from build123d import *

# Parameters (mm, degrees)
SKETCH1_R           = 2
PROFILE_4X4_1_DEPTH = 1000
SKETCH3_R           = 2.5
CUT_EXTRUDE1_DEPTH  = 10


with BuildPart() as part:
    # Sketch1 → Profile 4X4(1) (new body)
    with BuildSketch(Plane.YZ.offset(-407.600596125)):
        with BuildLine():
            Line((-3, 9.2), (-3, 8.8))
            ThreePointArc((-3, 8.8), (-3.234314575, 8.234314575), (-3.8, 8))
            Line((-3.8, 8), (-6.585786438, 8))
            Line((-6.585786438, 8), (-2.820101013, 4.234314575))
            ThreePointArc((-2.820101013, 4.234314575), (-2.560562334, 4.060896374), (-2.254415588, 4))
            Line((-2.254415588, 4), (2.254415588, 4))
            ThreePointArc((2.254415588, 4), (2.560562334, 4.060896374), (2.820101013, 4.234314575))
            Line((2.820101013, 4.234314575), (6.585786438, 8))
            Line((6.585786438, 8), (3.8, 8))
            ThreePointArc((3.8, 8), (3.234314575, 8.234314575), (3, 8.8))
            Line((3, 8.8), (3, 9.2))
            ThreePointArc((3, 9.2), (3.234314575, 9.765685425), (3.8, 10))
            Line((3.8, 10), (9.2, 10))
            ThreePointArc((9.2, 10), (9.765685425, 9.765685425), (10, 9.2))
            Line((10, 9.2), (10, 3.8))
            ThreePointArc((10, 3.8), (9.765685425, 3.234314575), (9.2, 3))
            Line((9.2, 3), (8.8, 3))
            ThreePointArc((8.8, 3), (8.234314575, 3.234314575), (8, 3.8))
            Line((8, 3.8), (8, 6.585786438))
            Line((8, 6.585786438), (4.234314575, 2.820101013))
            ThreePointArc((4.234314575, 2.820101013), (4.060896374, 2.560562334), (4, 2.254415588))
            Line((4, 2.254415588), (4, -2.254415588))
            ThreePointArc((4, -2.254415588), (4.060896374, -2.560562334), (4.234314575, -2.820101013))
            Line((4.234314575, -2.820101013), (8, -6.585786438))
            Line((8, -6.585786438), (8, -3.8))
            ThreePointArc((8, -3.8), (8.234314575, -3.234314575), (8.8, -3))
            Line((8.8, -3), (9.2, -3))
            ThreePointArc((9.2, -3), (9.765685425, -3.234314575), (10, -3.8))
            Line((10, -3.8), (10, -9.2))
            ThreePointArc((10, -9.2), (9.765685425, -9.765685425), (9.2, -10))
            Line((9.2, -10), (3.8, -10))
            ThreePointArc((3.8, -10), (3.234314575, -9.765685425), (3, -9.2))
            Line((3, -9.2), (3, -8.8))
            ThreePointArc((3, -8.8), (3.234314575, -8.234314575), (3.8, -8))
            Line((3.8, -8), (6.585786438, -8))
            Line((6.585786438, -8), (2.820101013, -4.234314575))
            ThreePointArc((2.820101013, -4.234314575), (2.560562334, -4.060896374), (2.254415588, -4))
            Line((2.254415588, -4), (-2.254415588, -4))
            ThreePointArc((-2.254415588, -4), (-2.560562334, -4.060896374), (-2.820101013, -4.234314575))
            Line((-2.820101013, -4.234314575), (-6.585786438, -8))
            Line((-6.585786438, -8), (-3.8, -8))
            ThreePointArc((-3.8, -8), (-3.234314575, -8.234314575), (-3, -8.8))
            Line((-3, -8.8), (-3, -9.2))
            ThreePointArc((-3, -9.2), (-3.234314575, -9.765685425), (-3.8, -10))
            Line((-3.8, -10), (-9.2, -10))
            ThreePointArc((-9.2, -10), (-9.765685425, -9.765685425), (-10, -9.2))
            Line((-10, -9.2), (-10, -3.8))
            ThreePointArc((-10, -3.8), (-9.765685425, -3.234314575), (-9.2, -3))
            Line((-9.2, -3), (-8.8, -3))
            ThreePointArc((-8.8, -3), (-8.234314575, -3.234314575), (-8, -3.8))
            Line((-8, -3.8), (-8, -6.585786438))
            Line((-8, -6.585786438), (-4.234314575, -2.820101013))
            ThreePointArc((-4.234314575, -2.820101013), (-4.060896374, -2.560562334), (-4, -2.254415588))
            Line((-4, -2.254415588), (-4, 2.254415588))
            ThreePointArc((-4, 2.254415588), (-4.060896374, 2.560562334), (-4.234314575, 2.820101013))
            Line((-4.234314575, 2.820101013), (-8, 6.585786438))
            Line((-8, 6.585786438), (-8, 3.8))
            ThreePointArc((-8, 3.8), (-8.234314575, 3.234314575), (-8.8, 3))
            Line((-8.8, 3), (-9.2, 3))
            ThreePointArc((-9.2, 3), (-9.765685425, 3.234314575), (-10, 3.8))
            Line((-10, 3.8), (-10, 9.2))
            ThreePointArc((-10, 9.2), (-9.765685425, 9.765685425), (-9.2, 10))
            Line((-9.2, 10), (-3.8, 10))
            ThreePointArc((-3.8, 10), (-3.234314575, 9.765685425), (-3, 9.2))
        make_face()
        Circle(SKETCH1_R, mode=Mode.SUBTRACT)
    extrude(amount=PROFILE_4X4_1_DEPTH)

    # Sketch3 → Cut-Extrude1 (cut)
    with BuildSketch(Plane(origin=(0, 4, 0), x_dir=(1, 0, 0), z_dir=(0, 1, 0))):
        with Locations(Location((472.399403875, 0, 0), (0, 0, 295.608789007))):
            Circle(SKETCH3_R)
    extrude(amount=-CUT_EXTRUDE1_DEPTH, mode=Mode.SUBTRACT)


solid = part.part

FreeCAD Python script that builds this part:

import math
import FreeCAD as App
import Part
import Sketcher
Q = App.Units.Quantity

doc = App.newDocument("Part")
params = doc.addObject("Spreadsheet::Sheet", "Params")
for row, (alias, value) in enumerate([
    ("sketch1_diameter", "4 mm"),
    ("sketch1_radius", "0.8 mm"),
    ("sketch1_width", "5.4 mm"),
    ("sketch1_width2", "0.4 mm"),
    ("pad1_length", "1000 mm"),
    ("sketch2_diameter", "5 mm"),
    ("pocket1_length", "10 mm"),
], start=1):
    params.set(f"A{row}", alias)
    params.set(f"B{row}", "=" + value)
    params.setAlias(f"B{row}", alias)

body = doc.addObject("PartDesign::Body", "Body")

sketch1 = doc.addObject("Sketcher::SketchObject", "Sketch")
body.addObject(sketch1)
sketch1.AttachmentSupport = (doc.YZ_Plane, [""])
sketch1.MapMode = "FlatFace"
sketch1.AttachmentOffset = App.Placement(App.Vector(0, 0, -407.600596), App.Rotation())
sketch1.addGeometry(Part.LineSegment(App.Vector(-3, 8.8, 0), App.Vector(-3, 9.2, 0)), False)
sketch1.addGeometry(Part.ArcOfCircle(Part.Circle(App.Vector(-3.8, 9.2, 0), App.Vector(0, 0, 1), 0.8), math.radians(0), math.radians(90)), False)
sketch1.addGeometry(Part.LineSegment(App.Vector(-3.8, 10, 0), App.Vector(-9.2, 10, 0)), False)
sketch1.addGeometry(Part.ArcOfCircle(Part.Circle(App.Vector(-9.2, 9.2, 0), App.Vector(0, 0, 1), 0.8), math.radians(90), math.radians(180)), False)
sketch1.addGeometry(Part.LineSegment(App.Vector(-10, 9.2, 0), App.Vector(-10, 3.8, 0)), False)
sketch1.addGeometry(Part.ArcOfCircle(Part.Circle(App.Vector(-9.2, 3.8, 0), App.Vector(0, 0, 1), 0.8), math.radians(180), math.radians(270)), False)
sketch1.addGeometry(Part.LineSegment(App.Vector(-9.2, 3, 0), App.Vector(-8.8, 3, 0)), False)
sketch1.addGeometry(Part.ArcOfCircle(Part.Circle(App.Vector(-8.8, 3.8, 0), App.Vector(0, 0, 1), 0.8), math.radians(-90), math.radians(0)), False)
sketch1.addGeometry(Part.LineSegment(App.Vector(-8, 3.8, 0), App.Vector(-8, 6.59, 0)), False)
sketch1.addGeometry(Part.LineSegment(App.Vector(-8, 6.59, 0), App.Vector(-4.23, 2.82, 0)), False)
sketch1.addGeometry(Part.ArcOfCircle(Part.Circle(App.Vector(-4.8, 2.25, 0), App.Vector(0, 0, 1), 0.8), math.radians(0), math.radians(45)), False)
sketch1.addGeometry(Part.LineSegment(App.Vector(-4, 2.25, 0), App.Vector(-4, -2.25, 0)), False)
sketch1.addGeometry(Part.ArcOfCircle(Part.Circle(App.Vector(-4.8, -2.25, 0), App.Vector(0, 0, 1), 0.8), math.radians(-45), math.radians(0)), False)
sketch1.addGeometry(Part.LineSegment(App.Vector(-4.23, -2.82, 0), App.Vector(-8, -6.59, 0)), False)
sketch1.addGeometry(Part.LineSegment(App.Vector(-8, -6.59, 0), App.Vector(-8, -3.8, 0)), False)
sketch1.addGeometry(Part.ArcOfCircle(Part.Circle(App.Vector(-8.8, -3.8, 0), App.Vector(0, 0, 1), 0.8), math.radians(0), math.radians(90)), False)
sketch1.addGeometry(Part.LineSegment(App.Vector(-8.8, -3, 0), App.Vector(-9.2, -3, 0)), False)
sketch1.addGeometry(Part.ArcOfCircle(Part.Circle(App.Vector(-9.2, -3.8, 0), App.Vector(0, 0, 1), 0.8), math.radians(90), math.radians(180)), False)
sketch1.addGeometry(Part.LineSegment(App.Vector(-10, -3.8, 0), App.Vector(-10, -9.2, 0)), False)
sketch1.addGeometry(Part.ArcOfCircle(Part.Circle(App.Vector(-9.2, -9.2, 0), App.Vector(0, 0, 1), 0.8), math.radians(180), math.radians(270)), False)
sketch1.addGeometry(Part.LineSegment(App.Vector(-9.2, -10, 0), App.Vector(-3.8, -10, 0)), False)
sketch1.addGeometry(Part.ArcOfCircle(Part.Circle(App.Vector(-3.8, -9.2, 0), App.Vector(0, 0, 1), 0.8), math.radians(-90), math.radians(0)), False)
sketch1.addGeometry(Part.LineSegment(App.Vector(-3, -9.2, 0), App.Vector(-3, -8.8, 0)), False)
sketch1.addGeometry(Part.ArcOfCircle(Part.Circle(App.Vector(-3.8, -8.8, 0), App.Vector(0, 0, 1), 0.8), math.radians(0), math.radians(90)), False)
sketch1.addGeometry(Part.LineSegment(App.Vector(-3.8, -8, 0), App.Vector(-6.59, -8, 0)), False)
sketch1.addGeometry(Part.LineSegment(App.Vector(-6.59, -8, 0), App.Vector(-2.82, -4.23, 0)), False)
sketch1.addGeometry(Part.ArcOfCircle(Part.Circle(App.Vector(-2.25, -4.8, 0), App.Vector(0, 0, 1), 0.8), math.radians(90), math.radians(135)), False)
sketch1.addGeometry(Part.LineSegment(App.Vector(-2.25, -4, 0), App.Vector(2.25, -4, 0)), False)
sketch1.addGeometry(Part.ArcOfCircle(Part.Circle(App.Vector(2.25, -4.8, 0), App.Vector(0, 0, 1), 0.8), math.radians(45), math.radians(90)), False)
sketch1.addGeometry(Part.LineSegment(App.Vector(2.82, -4.23, 0), App.Vector(6.59, -8, 0)), False)
sketch1.addGeometry(Part.LineSegment(App.Vector(6.59, -8, 0), App.Vector(3.8, -8, 0)), False)
sketch1.addGeometry(Part.ArcOfCircle(Part.Circle(App.Vector(3.8, -8.8, 0), App.Vector(0, 0, 1), 0.8), math.radians(90), math.radians(180)), False)
sketch1.addGeometry(Part.LineSegment(App.Vector(3, -8.8, 0), App.Vector(3, -9.2, 0)), False)
sketch1.addGeometry(Part.ArcOfCircle(Part.Circle(App.Vector(3.8, -9.2, 0), App.Vector(0, 0, 1), 0.8), math.radians(180), math.radians(270)), False)
sketch1.addGeometry(Part.LineSegment(App.Vector(3.8, -10, 0), App.Vector(9.2, -10, 0)), False)
sketch1.addGeometry(Part.ArcOfCircle(Part.Circle(App.Vector(9.2, -9.2, 0), App.Vector(0, 0, 1), 0.8), math.radians(-90), math.radians(0)), False)
sketch1.addGeometry(Part.LineSegment(App.Vector(10, -9.2, 0), App.Vector(10, -3.8, 0)), False)
sketch1.addGeometry(Part.ArcOfCircle(Part.Circle(App.Vector(9.2, -3.8, 0), App.Vector(0, 0, 1), 0.8), math.radians(0), math.radians(90)), False)
sketch1.addGeometry(Part.LineSegment(App.Vector(9.2, -3, 0), App.Vector(8.8, -3, 0)), False)
sketch1.addGeometry(Part.ArcOfCircle(Part.Circle(App.Vector(8.8, -3.8, 0), App.Vector(0, 0, 1), 0.8), math.radians(90), math.radians(180)), False)
sketch1.addGeometry(Part.LineSegment(App.Vector(8, -3.8, 0), App.Vector(8, -6.59, 0)), False)
sketch1.addGeometry(Part.LineSegment(App.Vector(8, -6.59, 0), App.Vector(4.23, -2.82, 0)), False)
sketch1.addGeometry(Part.ArcOfCircle(Part.Circle(App.Vector(4.8, -2.25, 0), App.Vector(0, 0, 1), 0.8), math.radians(180), math.radians(225)), False)
sketch1.addGeometry(Part.LineSegment(App.Vector(4, -2.25, 0), App.Vector(4, 2.25, 0)), False)
sketch1.addGeometry(Part.ArcOfCircle(Part.Circle(App.Vector(4.8, 2.25, 0), App.Vector(0, 0, 1), 0.8), math.radians(135), math.radians(180)), False)
sketch1.addGeometry(Part.LineSegment(App.Vector(4.23, 2.82, 0), App.Vector(8, 6.59, 0)), False)
sketch1.addGeometry(Part.LineSegment(App.Vector(8, 6.59, 0), App.Vector(8, 3.8, 0)), False)
sketch1.addGeometry(Part.ArcOfCircle(Part.Circle(App.Vector(8.8, 3.8, 0), App.Vector(0, 0, 1), 0.8), math.radians(180), math.radians(270)), False)
sketch1.addGeometry(Part.LineSegment(App.Vector(8.8, 3, 0), App.Vector(9.2, 3, 0)), False)
sketch1.addGeometry(Part.ArcOfCircle(Part.Circle(App.Vector(9.2, 3.8, 0), App.Vector(0, 0, 1), 0.8), math.radians(-90), math.radians(0)), False)
sketch1.addGeometry(Part.LineSegment(App.Vector(10, 3.8, 0), App.Vector(10, 9.2, 0)), False)
sketch1.addGeometry(Part.ArcOfCircle(Part.Circle(App.Vector(9.2, 9.2, 0), App.Vector(0, 0, 1), 0.8), math.radians(0), math.radians(90)), False)
sketch1.addGeometry(Part.LineSegment(App.Vector(9.2, 10, 0), App.Vector(3.8, 10, 0)), False)
sketch1.addGeometry(Part.ArcOfCircle(Part.Circle(App.Vector(3.8, 9.2, 0), App.Vector(0, 0, 1), 0.8), math.radians(90), math.radians(180)), False)
sketch1.addGeometry(Part.LineSegment(App.Vector(3, 9.2, 0), App.Vector(3, 8.8, 0)), False)
sketch1.addGeometry(Part.ArcOfCircle(Part.Circle(App.Vector(3.8, 8.8, 0), App.Vector(0, 0, 1), 0.8), math.radians(180), math.radians(270)), False)
sketch1.addGeometry(Part.LineSegment(App.Vector(3.8, 8, 0), App.Vector(6.59, 8, 0)), False)
sketch1.addGeometry(Part.LineSegment(App.Vector(6.59, 8, 0), App.Vector(2.82, 4.23, 0)), False)
sketch1.addGeometry(Part.ArcOfCircle(Part.Circle(App.Vector(2.25, 4.8, 0), App.Vector(0, 0, 1), 0.8), math.radians(-90), math.radians(-45)), False)
sketch1.addGeometry(Part.LineSegment(App.Vector(2.25, 4, 0), App.Vector(-2.25, 4, 0)), False)
sketch1.addGeometry(Part.ArcOfCircle(Part.Circle(App.Vector(-2.25, 4.8, 0), App.Vector(0, 0, 1), 0.8), math.radians(-135), math.radians(-90)), False)
sketch1.addGeometry(Part.LineSegment(App.Vector(-2.82, 4.23, 0), App.Vector(-6.59, 8, 0)), False)
sketch1.addGeometry(Part.LineSegment(App.Vector(-6.59, 8, 0), App.Vector(-3.8, 8, 0)), False)
sketch1.addGeometry(Part.ArcOfCircle(Part.Circle(App.Vector(-3.8, 8.8, 0), App.Vector(0, 0, 1), 0.8), math.radians(-90), math.radians(0)), False)
sketch1.addGeometry(Part.Circle(App.Vector(0, 0, 0), App.Vector(0, 0, 1), 2), False)
sketch1.addConstraint(Sketcher.Constraint("Tangent", 0, 2, 1, 1))
sketch1.addConstraint(Sketcher.Constraint("Tangent", 1, 2, 2, 1))
sketch1.addConstraint(Sketcher.Constraint("Tangent", 2, 2, 3, 1))
sketch1.addConstraint(Sketcher.Constraint("Tangent", 3, 2, 4, 1))
sketch1.addConstraint(Sketcher.Constraint("Tangent", 4, 2, 5, 1))
sketch1.addConstraint(Sketcher.Constraint("Tangent", 5, 2, 6, 1))
sketch1.addConstraint(Sketcher.Constraint("Tangent", 6, 2, 7, 1))
sketch1.addConstraint(Sketcher.Constraint("Tangent", 7, 2, 8, 1))
sketch1.addConstraint(Sketcher.Constraint("Coincident", 8, 2, 9, 1))
sketch1.addConstraint(Sketcher.Constraint("Tangent", 9, 2, 10, 2))
sketch1.addConstraint(Sketcher.Constraint("Tangent", 10, 1, 11, 1))
sketch1.addConstraint(Sketcher.Constraint("Tangent", 11, 2, 12, 2))
sketch1.addConstraint(Sketcher.Constraint("Tangent", 12, 1, 13, 1))
sketch1.addConstraint(Sketcher.Constraint("Coincident", 13, 2, 14, 1))
sketch1.addConstraint(Sketcher.Constraint("Tangent", 14, 2, 15, 1))
sketch1.addConstraint(Sketcher.Constraint("Tangent", 15, 2, 16, 1))
sketch1.addConstraint(Sketcher.Constraint("Tangent", 16, 2, 17, 1))
sketch1.addConstraint(Sketcher.Constraint("Tangent", 17, 2, 18, 1))
sketch1.addConstraint(Sketcher.Constraint("Tangent", 18, 2, 19, 1))
sketch1.addConstraint(Sketcher.Constraint("Tangent", 19, 2, 20, 1))
sketch1.addConstraint(Sketcher.Constraint("Tangent", 20, 2, 21, 1))
sketch1.addConstraint(Sketcher.Constraint("Tangent", 21, 2, 22, 1))
sketch1.addConstraint(Sketcher.Constraint("Tangent", 22, 2, 23, 1))
sketch1.addConstraint(Sketcher.Constraint("Tangent", 23, 2, 24, 1))
sketch1.addConstraint(Sketcher.Constraint("Coincident", 24, 2, 25, 1))
sketch1.addConstraint(Sketcher.Constraint("Tangent", 25, 2, 26, 2))
sketch1.addConstraint(Sketcher.Constraint("Tangent", 26, 1, 27, 1))
sketch1.addConstraint(Sketcher.Constraint("Tangent", 27, 2, 28, 2))
sketch1.addConstraint(Sketcher.Constraint("Tangent", 28, 1, 29, 1))
sketch1.addConstraint(Sketcher.Constraint("Coincident", 29, 2, 30, 1))
sketch1.addConstraint(Sketcher.Constraint("Tangent", 30, 2, 31, 1))
sketch1.addConstraint(Sketcher.Constraint("Tangent", 31, 2, 32, 1))
sketch1.addConstraint(Sketcher.Constraint("Tangent", 32, 2, 33, 1))
sketch1.addConstraint(Sketcher.Constraint("Tangent", 33, 2, 34, 1))
sketch1.addConstraint(Sketcher.Constraint("Tangent", 34, 2, 35, 1))
sketch1.addConstraint(Sketcher.Constraint("Tangent", 35, 2, 36, 1))
sketch1.addConstraint(Sketcher.Constraint("Tangent", 36, 2, 37, 1))
sketch1.addConstraint(Sketcher.Constraint("Tangent", 37, 2, 38, 1))
sketch1.addConstraint(Sketcher.Constraint("Tangent", 38, 2, 39, 1))
sketch1.addConstraint(Sketcher.Constraint("Tangent", 39, 2, 40, 1))
sketch1.addConstraint(Sketcher.Constraint("Coincident", 40, 2, 41, 1))
sketch1.addConstraint(Sketcher.Constraint("Tangent", 41, 2, 42, 2))
sketch1.addConstraint(Sketcher.Constraint("Tangent", 42, 1, 43, 1))
sketch1.addConstraint(Sketcher.Constraint("Tangent", 43, 2, 44, 2))
sketch1.addConstraint(Sketcher.Constraint("Tangent", 44, 1, 45, 1))
sketch1.addConstraint(Sketcher.Constraint("Coincident", 45, 2, 46, 1))
sketch1.addConstraint(Sketcher.Constraint("Tangent", 46, 2, 47, 1))
sketch1.addConstraint(Sketcher.Constraint("Tangent", 47, 2, 48, 1))
sketch1.addConstraint(Sketcher.Constraint("Tangent", 48, 2, 49, 1))
sketch1.addConstraint(Sketcher.Constraint("Tangent", 49, 2, 50, 1))
sketch1.addConstraint(Sketcher.Constraint("Tangent", 50, 2, 51, 1))
sketch1.addConstraint(Sketcher.Constraint("Tangent", 51, 2, 52, 1))
sketch1.addConstraint(Sketcher.Constraint("Tangent", 52, 2, 53, 1))
sketch1.addConstraint(Sketcher.Constraint("Tangent", 53, 2, 54, 1))
sketch1.addConstraint(Sketcher.Constraint("Tangent", 54, 2, 55, 1))
sketch1.addConstraint(Sketcher.Constraint("Tangent", 55, 2, 56, 1))
sketch1.addConstraint(Sketcher.Constraint("Coincident", 56, 2, 57, 1))
sketch1.addConstraint(Sketcher.Constraint("Tangent", 57, 2, 58, 2))
sketch1.addConstraint(Sketcher.Constraint("Tangent", 58, 1, 59, 1))
sketch1.addConstraint(Sketcher.Constraint("Tangent", 59, 2, 60, 2))
sketch1.addConstraint(Sketcher.Constraint("Tangent", 60, 1, 61, 1))
sketch1.addConstraint(Sketcher.Constraint("Coincident", 61, 2, 62, 1))
sketch1.addConstraint(Sketcher.Constraint("Tangent", 62, 2, 63, 1))
sketch1.addConstraint(Sketcher.Constraint("Tangent", 63, 2, 0, 1))
sketch1.addConstraint(Sketcher.Constraint("Vertical", 0))
sketch1.addConstraint(Sketcher.Constraint("Horizontal", 2))
sketch1.addConstraint(Sketcher.Constraint("Vertical", 4))
sketch1.addConstraint(Sketcher.Constraint("Horizontal", 6))
sketch1.addConstraint(Sketcher.Constraint("Vertical", 8))
sketch1.addConstraint(Sketcher.Constraint("Vertical", 11))
sketch1.addConstraint(Sketcher.Constraint("Vertical", 14))
sketch1.addConstraint(Sketcher.Constraint("Horizontal", 16))
sketch1.addConstraint(Sketcher.Constraint("Vertical", 18))
sketch1.addConstraint(Sketcher.Constraint("Horizontal", 20))
sketch1.addConstraint(Sketcher.Constraint("Vertical", 22))
sketch1.addConstraint(Sketcher.Constraint("Horizontal", 24))
sketch1.addConstraint(Sketcher.Constraint("Horizontal", 27))
sketch1.addConstraint(Sketcher.Constraint("Horizontal", 30))
sketch1.addConstraint(Sketcher.Constraint("Vertical", 32))
sketch1.addConstraint(Sketcher.Constraint("Horizontal", 34))
sketch1.addConstraint(Sketcher.Constraint("Vertical", 36))
sketch1.addConstraint(Sketcher.Constraint("Horizontal", 38))
sketch1.addConstraint(Sketcher.Constraint("Vertical", 40))
sketch1.addConstraint(Sketcher.Constraint("Vertical", 43))
sketch1.addConstraint(Sketcher.Constraint("Vertical", 46))
sketch1.addConstraint(Sketcher.Constraint("Horizontal", 48))
sketch1.addConstraint(Sketcher.Constraint("Vertical", 50))
sketch1.addConstraint(Sketcher.Constraint("Horizontal", 52))
sketch1.addConstraint(Sketcher.Constraint("Vertical", 54))
sketch1.addConstraint(Sketcher.Constraint("Horizontal", 56))
sketch1.addConstraint(Sketcher.Constraint("Horizontal", 59))
sketch1.addConstraint(Sketcher.Constraint("Horizontal", 62))
sketch1.addConstraint(Sketcher.Constraint("Coincident", 64, 3, -1, 1))
sketch1.addConstraint(Sketcher.Constraint("Equal", 1, 3))
sketch1.addConstraint(Sketcher.Constraint("Equal", 3, 5))
sketch1.addConstraint(Sketcher.Constraint("Equal", 5, 7))
sketch1.addConstraint(Sketcher.Constraint("Equal", 7, 10))
sketch1.addConstraint(Sketcher.Constraint("Equal", 10, 12))
sketch1.addConstraint(Sketcher.Constraint("Equal", 12, 15))
sketch1.addConstraint(Sketcher.Constraint("Equal", 15, 17))
sketch1.addConstraint(Sketcher.Constraint("Equal", 17, 19))
sketch1.addConstraint(Sketcher.Constraint("Equal", 19, 21))
sketch1.addConstraint(Sketcher.Constraint("Equal", 21, 23))
sketch1.addConstraint(Sketcher.Constraint("Equal", 23, 26))
sketch1.addConstraint(Sketcher.Constraint("Equal", 26, 28))
sketch1.addConstraint(Sketcher.Constraint("Equal", 28, 31))
sketch1.addConstraint(Sketcher.Constraint("Equal", 31, 33))
sketch1.addConstraint(Sketcher.Constraint("Equal", 33, 35))
sketch1.addConstraint(Sketcher.Constraint("Equal", 35, 37))
sketch1.addConstraint(Sketcher.Constraint("Equal", 37, 39))
sketch1.addConstraint(Sketcher.Constraint("Equal", 39, 42))
sketch1.addConstraint(Sketcher.Constraint("Equal", 42, 44))
sketch1.addConstraint(Sketcher.Constraint("Equal", 44, 47))
sketch1.addConstraint(Sketcher.Constraint("Equal", 47, 49))
sketch1.addConstraint(Sketcher.Constraint("Equal", 49, 51))
sketch1.addConstraint(Sketcher.Constraint("Equal", 51, 53))
sketch1.addConstraint(Sketcher.Constraint("Equal", 53, 55))
sketch1.addConstraint(Sketcher.Constraint("Equal", 55, 58))
sketch1.addConstraint(Sketcher.Constraint("Equal", 58, 60))
sketch1.addConstraint(Sketcher.Constraint("Equal", 60, 63))
sketch1.addConstraint(Sketcher.Constraint("Symmetric", 1, 3, 33, 3, -1, 1))
sketch1.addConstraint(Sketcher.Constraint("Symmetric", 5, 3, 37, 3, -1, 1))
sketch1.addConstraint(Sketcher.Constraint("Symmetric", 10, 3, 42, 3, -1, 1))
sketch1.addConstraint(Sketcher.Constraint("Symmetric", 15, 3, 47, 3, -1, 1))
sketch1.addConstraint(Sketcher.Constraint("Symmetric", 19, 3, 51, 3, -1, 1))
sketch1.addConstraint(Sketcher.Constraint("Symmetric", 23, 3, 55, 3, -1, 1))
sketch1.addConstraint(Sketcher.Constraint("Symmetric", 26, 3, 58, 3, -1, 1))
sketch1.addConstraint(Sketcher.Constraint("Symmetric", 8, 2, 40, 2, -1, 1))
sketch1.addConstraint(Sketcher.Constraint("Symmetric", 12, 1, 44, 1, -1, 1))
sketch1.addConstraint(Sketcher.Constraint("Symmetric", 28, 1, 60, 1, -1, 1))
sketch1.addConstraint(Sketcher.Constraint("Symmetric", 23, 3, 31, 3, -2))
sketch1.addConstraint(Sketcher.Constraint("Symmetric", 19, 3, 35, 3, -2))
sketch1.addConstraint(Sketcher.Constraint("Symmetric", 15, 3, 39, 3, -2))
sketch1.addConstraint(Sketcher.Constraint("Symmetric", 25, 2, 28, 1, -2))
sketch1.addConstraint(Sketcher.Constraint("Symmetric", 12, 1, 41, 2, -2))
sketch1.addConstraint(Sketcher.Constraint("Symmetric", 56, 2, 61, 2, -2))
sketch1.addConstraint(Sketcher.Constraint("Perpendicular", 9, 13))
sketch1.addConstraint(Sketcher.Constraint("Parallel", 13, 25))
sketch1.addConstraint(Sketcher.Constraint("Equal", 48, 0))
sketch1.addConstraint(Sketcher.Constraint("Equal", 52, 4))
sketch1.addConstraint(Sketcher.Constraint("Equal", 62, 8))
sketch1.addConstraint(Sketcher.Constraint("Equal", 59, 11))
sketch1.addConstraint(Sketcher.Constraint("Equal", 13, 25))
sketch1.addConstraint(Sketcher.Constraint("Diameter", 64, Q("4 mm")))
sketch1.addConstraint(Sketcher.Constraint("Radius", 1, Q("0.8 mm")))
sketch1.addConstraint(Sketcher.Constraint("DistanceX", 2, 2, 2, 1, Q("5.4 mm")))
sketch1.addConstraint(Sketcher.Constraint("DistanceX", 6, 1, 6, 2, Q("0.4 mm")))
sketch1.addConstraint(Sketcher.Constraint("DistanceX", 0, 2, -1, 1, Q("3 mm")))
sketch1.addConstraint(Sketcher.Constraint("DistanceX", 10, 1, -1, 1, Q("4 mm")))
sketch1.addConstraint(Sketcher.Constraint("DistanceX", 27, 1, 27, 2, Q("4.508831 mm")))
sketch1.setExpression("Constraints[143]", "Params.sketch1_diameter")
sketch1.setExpression("Constraints[144]", "Params.sketch1_radius")
sketch1.setExpression("Constraints[145]", "Params.sketch1_width")
sketch1.setExpression("Constraints[146]", "Params.sketch1_width2")
pad1 = doc.addObject("PartDesign::Pad", "Pad")
body.addObject(pad1)
pad1.Profile = sketch1
pad1.setExpression("Length", "Params.pad1_length")

sketch2 = doc.addObject("Sketcher::SketchObject", "Sketch001")
body.addObject(sketch2)
sketch2.AttachmentSupport = (doc.XZ_Plane, [""])
sketch2.MapMode = "FlatFace"
sketch2.AttachmentOffset = App.Placement(App.Vector(0, 0, -4), App.Rotation())
sketch2.addGeometry(Part.Circle(App.Vector(472.4, 0, 0), App.Vector(0, 0, 1), 2.5), False)
sketch2.addConstraint(Sketcher.Constraint("PointOnObject", 0, 3, -1))
sketch2.addConstraint(Sketcher.Constraint("Diameter", 0, Q("5 mm")))
sketch2.addConstraint(Sketcher.Constraint("DistanceX", -1, 1, 0, 3, Q("472.399404 mm")))
sketch2.setExpression("Constraints[1]", "Params.sketch2_diameter")
pocket1 = doc.addObject("PartDesign::Pocket", "Pocket")
body.addObject(pocket1)
pocket1.Profile = sketch2
pocket1.setExpression("Length", "Params.pocket1_length")
pocket1.Reversed = True

doc.recompute()
